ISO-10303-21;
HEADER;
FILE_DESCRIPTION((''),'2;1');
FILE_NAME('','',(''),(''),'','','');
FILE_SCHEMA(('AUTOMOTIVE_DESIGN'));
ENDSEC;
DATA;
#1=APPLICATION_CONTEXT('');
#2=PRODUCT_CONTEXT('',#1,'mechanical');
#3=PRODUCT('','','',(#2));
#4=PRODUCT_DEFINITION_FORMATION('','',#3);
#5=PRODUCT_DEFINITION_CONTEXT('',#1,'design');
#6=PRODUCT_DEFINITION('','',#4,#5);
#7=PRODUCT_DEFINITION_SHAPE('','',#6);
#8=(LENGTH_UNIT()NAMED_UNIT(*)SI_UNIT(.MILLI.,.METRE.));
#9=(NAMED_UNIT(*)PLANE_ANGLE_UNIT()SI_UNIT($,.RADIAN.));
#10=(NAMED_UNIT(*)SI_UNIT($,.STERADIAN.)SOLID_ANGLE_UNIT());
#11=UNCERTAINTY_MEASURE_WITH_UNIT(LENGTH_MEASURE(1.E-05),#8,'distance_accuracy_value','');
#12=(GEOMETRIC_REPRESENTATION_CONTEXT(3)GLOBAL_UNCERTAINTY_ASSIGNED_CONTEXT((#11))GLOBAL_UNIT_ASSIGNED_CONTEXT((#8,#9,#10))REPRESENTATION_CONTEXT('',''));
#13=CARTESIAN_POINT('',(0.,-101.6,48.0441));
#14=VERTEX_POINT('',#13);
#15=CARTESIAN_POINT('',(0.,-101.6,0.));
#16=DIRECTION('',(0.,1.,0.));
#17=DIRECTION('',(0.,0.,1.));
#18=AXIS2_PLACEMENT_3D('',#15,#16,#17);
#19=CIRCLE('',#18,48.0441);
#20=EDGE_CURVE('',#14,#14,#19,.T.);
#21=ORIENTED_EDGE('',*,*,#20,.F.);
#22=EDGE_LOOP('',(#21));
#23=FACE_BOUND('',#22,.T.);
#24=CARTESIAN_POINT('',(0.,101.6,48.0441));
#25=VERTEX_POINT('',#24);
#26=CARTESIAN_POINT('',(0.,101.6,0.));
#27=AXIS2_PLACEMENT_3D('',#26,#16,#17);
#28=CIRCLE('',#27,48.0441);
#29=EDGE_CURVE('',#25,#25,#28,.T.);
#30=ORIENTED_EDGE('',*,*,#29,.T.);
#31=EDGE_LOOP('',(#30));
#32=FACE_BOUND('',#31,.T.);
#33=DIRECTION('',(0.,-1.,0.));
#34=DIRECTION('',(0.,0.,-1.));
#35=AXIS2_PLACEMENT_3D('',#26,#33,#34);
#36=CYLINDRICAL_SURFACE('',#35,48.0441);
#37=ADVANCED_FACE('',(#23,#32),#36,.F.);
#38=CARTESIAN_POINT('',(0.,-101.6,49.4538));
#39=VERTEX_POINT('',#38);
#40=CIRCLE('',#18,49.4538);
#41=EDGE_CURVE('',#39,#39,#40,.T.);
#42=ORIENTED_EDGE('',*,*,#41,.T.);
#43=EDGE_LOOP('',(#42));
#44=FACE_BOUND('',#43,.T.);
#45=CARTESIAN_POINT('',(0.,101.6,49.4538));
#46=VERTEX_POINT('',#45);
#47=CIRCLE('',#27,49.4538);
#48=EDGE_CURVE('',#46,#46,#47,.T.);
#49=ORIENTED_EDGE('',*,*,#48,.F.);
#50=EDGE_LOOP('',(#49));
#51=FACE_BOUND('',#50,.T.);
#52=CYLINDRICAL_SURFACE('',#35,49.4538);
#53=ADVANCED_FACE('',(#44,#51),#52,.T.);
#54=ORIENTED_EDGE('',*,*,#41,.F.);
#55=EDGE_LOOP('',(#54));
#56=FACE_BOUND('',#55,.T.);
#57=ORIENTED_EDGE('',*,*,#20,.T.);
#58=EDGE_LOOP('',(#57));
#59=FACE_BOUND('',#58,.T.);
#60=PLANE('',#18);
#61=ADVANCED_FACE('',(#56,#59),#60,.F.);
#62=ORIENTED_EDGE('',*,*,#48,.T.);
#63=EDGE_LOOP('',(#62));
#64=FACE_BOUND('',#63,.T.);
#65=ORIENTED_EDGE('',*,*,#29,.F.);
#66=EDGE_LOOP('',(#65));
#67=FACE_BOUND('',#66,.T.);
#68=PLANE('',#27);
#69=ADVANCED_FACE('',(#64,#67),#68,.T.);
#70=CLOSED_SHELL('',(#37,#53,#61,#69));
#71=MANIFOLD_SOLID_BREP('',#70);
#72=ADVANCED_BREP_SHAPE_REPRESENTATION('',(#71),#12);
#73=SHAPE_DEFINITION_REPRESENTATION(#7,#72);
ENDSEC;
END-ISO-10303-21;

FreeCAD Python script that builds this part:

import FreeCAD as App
import Part
import Sketcher
from FreeCAD import Vector
Q = App.Units.Quantity

doc = App.newDocument("Part")
params = doc.addObject("Spreadsheet::Sheet", "Params")
for row, (alias, value) in enumerate([
    ("sketch1_diameter", "3.894 in"),
    ("sketch1_diameter2", "3.783 in"),
    ("pad1_length", "8 in"),
], start=1):
    params.set(f"A{row}", alias)
    params.set(f"B{row}", "=" + value)
    params.setAlias(f"B{row}", alias)

body = doc.addObject("PartDesign::Body", "Body")

# Sketch on XZ plane
sketch1 = doc.addObject("Sketcher::SketchObject", "Sketch")
body.addObject(sketch1)
sketch1.AttachmentSupport = (doc.XZ_Plane, [""])
sketch1.MapMode = "FlatFace"
sketch1.addGeometry([
    Part.Circle(Vector(0, 0, 0), Vector(0, 0, 1), 49),
    Part.Circle(Vector(0, 0, 0), Vector(0, 0, 1), 48),
], False)
sketch1.addConstraint([
    Sketcher.Constraint("Coincident", 0, 3, -1, 1),
    Sketcher.Constraint("Coincident", 1, 3, -1, 1),
    Sketcher.Constraint("Diameter", 0, Q("3.894 in")),
    Sketcher.Constraint("Diameter", 1, Q("3.783 in")),
])
sketch1.setExpression("Constraints[2]", "Params.sketch1_diameter")
sketch1.setExpression("Constraints[3]", "Params.sketch1_diameter2")
pad1 = doc.addObject("PartDesign::Pad", "Pad")
body.addObject(pad1)
pad1.Profile = sketch1
pad1.setExpression("Length", "Params.pad1_length")
pad1.Midplane = True

doc.recompute()
